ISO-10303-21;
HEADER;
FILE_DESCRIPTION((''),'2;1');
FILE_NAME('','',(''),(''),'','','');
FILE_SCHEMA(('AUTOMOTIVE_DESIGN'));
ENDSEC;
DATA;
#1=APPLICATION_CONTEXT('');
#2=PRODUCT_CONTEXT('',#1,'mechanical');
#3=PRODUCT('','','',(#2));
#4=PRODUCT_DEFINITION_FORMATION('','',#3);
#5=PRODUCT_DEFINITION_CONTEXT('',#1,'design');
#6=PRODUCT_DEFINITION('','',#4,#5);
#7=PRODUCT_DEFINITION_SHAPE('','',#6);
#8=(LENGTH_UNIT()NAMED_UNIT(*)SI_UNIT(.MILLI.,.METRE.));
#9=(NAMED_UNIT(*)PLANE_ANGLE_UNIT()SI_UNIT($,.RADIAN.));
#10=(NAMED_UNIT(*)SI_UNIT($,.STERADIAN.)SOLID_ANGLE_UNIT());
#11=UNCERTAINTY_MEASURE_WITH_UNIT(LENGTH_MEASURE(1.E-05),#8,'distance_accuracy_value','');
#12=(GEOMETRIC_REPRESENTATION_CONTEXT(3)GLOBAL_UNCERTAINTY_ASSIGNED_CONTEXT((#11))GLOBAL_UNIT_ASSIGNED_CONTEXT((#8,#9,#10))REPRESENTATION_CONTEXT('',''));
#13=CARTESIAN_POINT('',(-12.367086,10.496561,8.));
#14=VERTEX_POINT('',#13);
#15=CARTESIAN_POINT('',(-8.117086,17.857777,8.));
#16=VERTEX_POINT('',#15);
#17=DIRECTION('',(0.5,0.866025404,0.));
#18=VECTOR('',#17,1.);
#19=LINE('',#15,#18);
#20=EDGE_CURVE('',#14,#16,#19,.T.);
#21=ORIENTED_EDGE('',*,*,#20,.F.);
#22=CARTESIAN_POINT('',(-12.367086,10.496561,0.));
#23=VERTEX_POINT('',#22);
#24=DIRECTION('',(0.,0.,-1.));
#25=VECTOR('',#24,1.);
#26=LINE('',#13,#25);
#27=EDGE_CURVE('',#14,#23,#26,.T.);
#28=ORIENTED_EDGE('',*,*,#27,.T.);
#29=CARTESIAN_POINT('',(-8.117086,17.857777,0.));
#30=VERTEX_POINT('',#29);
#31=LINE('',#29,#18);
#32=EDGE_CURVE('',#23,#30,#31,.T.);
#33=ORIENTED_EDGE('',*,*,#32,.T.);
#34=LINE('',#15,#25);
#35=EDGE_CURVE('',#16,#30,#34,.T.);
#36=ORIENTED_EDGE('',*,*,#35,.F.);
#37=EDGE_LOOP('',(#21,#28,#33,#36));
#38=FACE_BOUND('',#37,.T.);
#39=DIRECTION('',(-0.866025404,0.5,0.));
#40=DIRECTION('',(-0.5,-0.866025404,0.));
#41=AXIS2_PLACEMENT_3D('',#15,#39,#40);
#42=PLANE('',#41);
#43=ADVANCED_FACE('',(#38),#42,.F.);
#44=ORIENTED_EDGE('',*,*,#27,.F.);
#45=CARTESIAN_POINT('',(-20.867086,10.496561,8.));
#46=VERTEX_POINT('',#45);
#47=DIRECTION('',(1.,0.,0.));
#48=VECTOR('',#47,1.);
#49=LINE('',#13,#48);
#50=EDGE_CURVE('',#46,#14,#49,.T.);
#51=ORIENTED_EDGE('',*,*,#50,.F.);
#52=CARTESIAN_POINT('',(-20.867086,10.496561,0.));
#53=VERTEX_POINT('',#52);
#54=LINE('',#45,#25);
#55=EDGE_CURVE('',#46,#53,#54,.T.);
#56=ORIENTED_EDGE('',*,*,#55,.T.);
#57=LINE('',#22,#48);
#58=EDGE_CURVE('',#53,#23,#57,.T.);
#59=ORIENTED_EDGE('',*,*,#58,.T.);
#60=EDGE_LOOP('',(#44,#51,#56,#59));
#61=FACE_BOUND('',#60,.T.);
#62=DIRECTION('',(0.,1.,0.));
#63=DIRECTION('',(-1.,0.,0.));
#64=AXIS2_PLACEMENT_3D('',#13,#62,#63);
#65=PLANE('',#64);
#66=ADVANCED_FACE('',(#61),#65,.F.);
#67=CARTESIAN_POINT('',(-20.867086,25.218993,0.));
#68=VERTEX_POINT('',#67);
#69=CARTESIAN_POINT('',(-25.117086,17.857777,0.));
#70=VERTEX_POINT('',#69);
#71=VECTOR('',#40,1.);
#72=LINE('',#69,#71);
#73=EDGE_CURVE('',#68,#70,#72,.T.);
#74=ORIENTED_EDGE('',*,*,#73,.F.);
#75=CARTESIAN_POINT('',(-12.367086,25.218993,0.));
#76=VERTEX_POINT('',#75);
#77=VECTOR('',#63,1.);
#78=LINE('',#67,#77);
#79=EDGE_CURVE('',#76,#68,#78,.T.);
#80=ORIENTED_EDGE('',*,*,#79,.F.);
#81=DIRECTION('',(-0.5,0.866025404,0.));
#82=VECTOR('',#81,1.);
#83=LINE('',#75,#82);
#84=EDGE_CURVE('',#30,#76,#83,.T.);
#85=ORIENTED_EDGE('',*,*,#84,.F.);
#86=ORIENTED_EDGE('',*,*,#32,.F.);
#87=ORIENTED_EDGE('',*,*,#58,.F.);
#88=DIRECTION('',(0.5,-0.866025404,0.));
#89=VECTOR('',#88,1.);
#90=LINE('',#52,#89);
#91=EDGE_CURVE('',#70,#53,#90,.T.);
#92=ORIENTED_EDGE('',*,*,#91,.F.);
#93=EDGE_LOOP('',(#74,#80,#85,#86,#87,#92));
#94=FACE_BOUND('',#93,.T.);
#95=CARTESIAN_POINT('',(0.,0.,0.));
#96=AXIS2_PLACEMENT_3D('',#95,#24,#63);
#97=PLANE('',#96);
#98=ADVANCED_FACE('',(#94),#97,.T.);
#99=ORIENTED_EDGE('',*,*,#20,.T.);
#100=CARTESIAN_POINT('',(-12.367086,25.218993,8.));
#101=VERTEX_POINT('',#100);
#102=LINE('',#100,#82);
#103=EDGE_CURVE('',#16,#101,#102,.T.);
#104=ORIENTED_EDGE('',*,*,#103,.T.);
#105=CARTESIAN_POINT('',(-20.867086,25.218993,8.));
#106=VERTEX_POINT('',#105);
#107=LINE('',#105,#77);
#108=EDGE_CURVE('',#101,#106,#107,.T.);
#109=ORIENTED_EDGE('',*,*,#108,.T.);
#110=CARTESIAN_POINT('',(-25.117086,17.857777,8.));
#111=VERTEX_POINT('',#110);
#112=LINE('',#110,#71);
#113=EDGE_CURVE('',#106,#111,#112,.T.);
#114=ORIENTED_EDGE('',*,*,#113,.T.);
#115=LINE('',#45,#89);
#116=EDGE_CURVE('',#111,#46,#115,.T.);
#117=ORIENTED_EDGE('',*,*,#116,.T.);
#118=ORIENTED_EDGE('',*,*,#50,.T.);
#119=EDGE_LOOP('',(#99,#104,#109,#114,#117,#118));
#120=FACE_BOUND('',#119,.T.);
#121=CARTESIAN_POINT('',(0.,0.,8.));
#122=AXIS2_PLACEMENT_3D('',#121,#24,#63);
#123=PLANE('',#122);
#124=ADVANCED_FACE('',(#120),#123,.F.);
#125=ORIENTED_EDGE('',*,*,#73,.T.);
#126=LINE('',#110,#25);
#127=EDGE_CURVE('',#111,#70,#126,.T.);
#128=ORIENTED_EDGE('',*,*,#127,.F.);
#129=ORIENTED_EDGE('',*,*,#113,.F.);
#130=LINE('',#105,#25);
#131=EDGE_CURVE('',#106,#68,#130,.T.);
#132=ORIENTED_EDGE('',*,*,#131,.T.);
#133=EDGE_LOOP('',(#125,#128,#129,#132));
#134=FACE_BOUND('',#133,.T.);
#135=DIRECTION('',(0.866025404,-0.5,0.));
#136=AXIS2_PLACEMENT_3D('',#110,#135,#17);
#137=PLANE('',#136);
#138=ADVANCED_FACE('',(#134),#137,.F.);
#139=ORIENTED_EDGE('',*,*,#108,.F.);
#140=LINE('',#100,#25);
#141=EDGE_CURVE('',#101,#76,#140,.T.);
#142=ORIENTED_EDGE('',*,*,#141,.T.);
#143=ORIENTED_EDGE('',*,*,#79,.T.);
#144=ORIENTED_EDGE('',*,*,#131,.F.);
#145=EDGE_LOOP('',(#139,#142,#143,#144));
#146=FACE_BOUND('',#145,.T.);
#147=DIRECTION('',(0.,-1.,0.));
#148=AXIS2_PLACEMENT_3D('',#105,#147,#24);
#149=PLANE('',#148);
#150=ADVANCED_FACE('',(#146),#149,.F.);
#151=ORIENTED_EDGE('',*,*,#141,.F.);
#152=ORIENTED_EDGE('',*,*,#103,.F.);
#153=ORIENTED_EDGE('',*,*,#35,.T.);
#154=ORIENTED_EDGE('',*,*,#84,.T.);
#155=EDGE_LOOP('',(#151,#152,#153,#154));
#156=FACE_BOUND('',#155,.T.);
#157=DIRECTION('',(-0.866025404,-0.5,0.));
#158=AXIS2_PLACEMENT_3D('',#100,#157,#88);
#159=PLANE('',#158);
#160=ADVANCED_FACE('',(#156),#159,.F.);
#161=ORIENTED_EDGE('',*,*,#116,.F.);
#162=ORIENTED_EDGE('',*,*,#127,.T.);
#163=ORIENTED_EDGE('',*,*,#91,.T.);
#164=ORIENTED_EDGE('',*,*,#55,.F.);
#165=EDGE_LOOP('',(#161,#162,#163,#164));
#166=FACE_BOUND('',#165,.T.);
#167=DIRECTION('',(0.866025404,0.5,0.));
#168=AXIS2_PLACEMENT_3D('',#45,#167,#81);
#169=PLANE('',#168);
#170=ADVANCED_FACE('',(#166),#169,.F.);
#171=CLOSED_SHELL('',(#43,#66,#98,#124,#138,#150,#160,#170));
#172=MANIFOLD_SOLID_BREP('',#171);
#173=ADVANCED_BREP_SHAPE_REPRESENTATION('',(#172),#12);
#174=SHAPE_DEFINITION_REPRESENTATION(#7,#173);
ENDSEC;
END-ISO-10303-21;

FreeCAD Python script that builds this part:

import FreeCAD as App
import Part
import Sketcher
from FreeCAD import Vector
Q = App.Units.Quantity


def add_polygon(sketch, points):
    """Adds a closed chain of lines whose ends are joined by coincident constraints."""
    first, n = sketch.GeometryCount, len(points)
    for a, b in zip(points, points[1:] + points[:1]):
        sketch.addGeometry(Part.LineSegment(App.Vector(*a, 0), App.Vector(*b, 0)), False)
    for i in range(n):
        sketch.addConstraint(Sketcher.Constraint("Coincident", first + i, 2, first + (i + 1) % n, 1))

doc = App.newDocument("Part")
body = doc.addObject("PartDesign::Body", "Body")

# Sketch on XY plane
sketch1 = body.newObject("Sketcher::SketchObject", "Sketch")
sketch1.AttachmentSupport = (doc.getObject("XY_Plane"), [""])
sketch1.MapMode = "FlatFace"
add_polygon(sketch1, [(-12, 25), (-21, 25), (-25, 18), (-21, 10), (-12, 10), (-8, 18)])  # lines 0-5
sketch1.addConstraint([
    Sketcher.Constraint("Horizontal", 0),
    Sketcher.Constraint("Horizontal", 3),
    Sketcher.Constraint("Parallel", 1, 4),
    Sketcher.Constraint("Parallel", 2, 5),
    Sketcher.Constraint("Horizontal", 1, 2, 4, 2),
    Sketcher.Constraint("Vertical", 0, 2, 2, 2),
    Sketcher.Constraint("Vertical", 3, 2, 5, 2),
    Sketcher.Constraint("Angle", 1, Q("-120 deg")),
    Sketcher.Constraint("DistanceX", 0, 2, 0, 1, 8.5),
    Sketcher.Constraint("DistanceX", 1, 2, 4, 2, 17.0),
    Sketcher.Constraint("DistanceY", -1, 1, 2, 2, 10.496561),
    Sketcher.Constraint("DistanceX", 0, 2, -1, 1, 20.867086),
])
pad1 = body.newObject("PartDesign::Pad", "Pad")
pad1.Profile = sketch1
pad1.Length = 8

doc.recompute()
